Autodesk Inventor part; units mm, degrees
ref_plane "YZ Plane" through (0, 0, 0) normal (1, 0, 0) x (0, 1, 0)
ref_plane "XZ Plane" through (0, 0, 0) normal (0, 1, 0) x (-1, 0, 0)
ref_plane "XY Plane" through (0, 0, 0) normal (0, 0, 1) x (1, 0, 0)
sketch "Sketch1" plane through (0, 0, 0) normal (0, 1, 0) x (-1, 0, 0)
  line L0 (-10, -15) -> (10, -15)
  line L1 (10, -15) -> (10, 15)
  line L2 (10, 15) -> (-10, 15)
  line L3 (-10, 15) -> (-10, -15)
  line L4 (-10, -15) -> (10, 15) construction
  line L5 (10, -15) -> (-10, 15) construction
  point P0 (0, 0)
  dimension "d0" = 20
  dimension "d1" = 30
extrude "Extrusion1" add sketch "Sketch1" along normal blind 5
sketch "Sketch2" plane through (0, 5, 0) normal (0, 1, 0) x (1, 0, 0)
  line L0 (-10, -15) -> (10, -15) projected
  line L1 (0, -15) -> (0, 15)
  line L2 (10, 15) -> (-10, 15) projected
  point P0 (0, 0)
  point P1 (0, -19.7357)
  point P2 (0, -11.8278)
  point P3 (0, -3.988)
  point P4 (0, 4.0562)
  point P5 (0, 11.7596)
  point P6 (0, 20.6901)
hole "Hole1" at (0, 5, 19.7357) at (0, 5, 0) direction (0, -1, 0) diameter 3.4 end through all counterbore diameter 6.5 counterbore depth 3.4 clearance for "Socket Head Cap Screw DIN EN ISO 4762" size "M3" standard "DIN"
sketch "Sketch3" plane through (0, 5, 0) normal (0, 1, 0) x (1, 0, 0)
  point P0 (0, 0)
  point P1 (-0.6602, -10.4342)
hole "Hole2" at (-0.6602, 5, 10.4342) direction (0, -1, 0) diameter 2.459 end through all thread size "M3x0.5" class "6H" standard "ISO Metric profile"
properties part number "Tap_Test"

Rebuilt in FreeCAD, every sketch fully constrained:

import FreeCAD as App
import Part
import Sketcher
Q = App.Units.Quantity


def add_polygon(sketch, points):
    """Adds a closed chain of lines whose ends are joined by coincident constraints."""
    first, n = sketch.GeometryCount, len(points)
    for a, b in zip(points, points[1:] + points[:1]):
        sketch.addGeometry(Part.LineSegment(App.Vector(*a, 0), App.Vector(*b, 0)), False)
    for i in range(n):
        sketch.addConstraint(Sketcher.Constraint("Coincident", first + i, 2, first + (i + 1) % n, 1))

doc = App.newDocument("Part")
params = doc.addObject("Spreadsheet::Sheet", "Params")
for row, (alias, value) in enumerate([
    ("sketch1_width", "20 mm"),
    ("sketch1_height", "30 mm"),
    ("pad1_length", "5 mm"),
    ("sketch2_diameter", "3.4 mm"),
    ("hole_diameter", "3.4 mm"),
    ("hole_cbore_diameter", "6.5 mm"),
    ("hole_cbore_depth", "3.4 mm"),
    ("hole2_diameter", "2.459 mm"),
], start=1):
    params.set(f"A{row}", alias)
    params.set(f"B{row}", "=" + value)
    params.setAlias(f"B{row}", alias)

body = doc.addObject("PartDesign::Body", "Body")

# Sketch on XZ plane
sketch1 = doc.addObject("Sketcher::SketchObject", "Sketch")
body.addObject(sketch1)
sketch1.AttachmentSupport = (doc.XZ_Plane, [""])
sketch1.MapMode = "FlatFace"
add_polygon(sketch1, [(10, 15), (10, -15), (-10, -15), (-10, 15)])  # lines 0-3
sketch1.addConstraint([
    Sketcher.Constraint("Vertical", 0),
    Sketcher.Constraint("Horizontal", 1),
    Sketcher.Constraint("Vertical", 2),
    Sketcher.Constraint("Horizontal", 3),
    Sketcher.Constraint("Symmetric", 0, 2, 2, 2, -1, 1),
    Sketcher.Constraint("DistanceX", 1, 2, 1, 1, Q("20 mm")),
    Sketcher.Constraint("DistanceY", 0, 2, 0, 1, Q("30 mm")),
])
sketch1.setExpression("Constraints[9]", "Params.sketch1_width")
sketch1.setExpression("Constraints[10]", "Params.sketch1_height")
pad1 = doc.addObject("PartDesign::Pad", "Pad")
body.addObject(pad1)
pad1.Profile = sketch1
pad1.setExpression("Length", "Params.pad1_length")
pad1.Reversed = True

# Sketch on XZ plane
sketch2 = doc.addObject("Sketcher::SketchObject", "Sketch001")
body.addObject(sketch2)
sketch2.AttachmentSupport = (doc.XZ_Plane, [""])
sketch2.MapMode = "FlatFace"
sketch2.AttachmentOffset = App.Placement(App.Vector(0, 0, -5), App.Rotation())
sketch2.addGeometry([
    Part.Circle(App.Vector(0, 19.7, 0), App.Vector(0, 0, 1), 1.7),
    Part.Circle(App.Vector(0, 0, 0), App.Vector(0, 0, 1), 1.7),
], False)
sketch2.addConstraint([
    Sketcher.Constraint("Coincident", 1, 3, -1, 1),
    Sketcher.Constraint("Equal", 0, 1),
    Sketcher.Constraint("PointOnObject", 0, 3, -2),
    Sketcher.Constraint("Diameter", 0, Q("3.4 mm")),
    Sketcher.Constraint("DistanceY", -1, 1, 0, 3, Q("19.7357 mm")),
])
sketch2.setExpression("Constraints[3]", "Params.sketch2_diameter")
doc.recompute()
hole = doc.addObject("PartDesign::Hole", "Hole")
body.addObject(hole)
hole.Profile = sketch2
hole.ThreadType = "None"
hole.setExpression("Diameter", "Params.hole_diameter")
hole.DepthType = "ThroughAll"
hole.HoleCutType = "Counterbore"
hole.setExpression("HoleCutDiameter", "Params.hole_cbore_diameter")
hole.setExpression("HoleCutDepth", "Params.hole_cbore_depth")
hole.Reversed = True

# Sketch on XZ plane
sketch3 = doc.addObject("Sketcher::SketchObject", "Sketch002")
body.addObject(sketch3)
sketch3.AttachmentSupport = (doc.XZ_Plane, [""])
sketch3.MapMode = "FlatFace"
sketch3.AttachmentOffset = App.Placement(App.Vector(0, 0, -5), App.Rotation())
sketch3.addGeometry(Part.Circle(App.Vector(-0.7, 10.4, 0), App.Vector(0, 0, 1), 1.2), False)
sketch3.addConstraint([
    Sketcher.Constraint("Diameter", 0, Q("2.459 mm")),
    Sketcher.Constraint("DistanceX", 0, 3, -1, 1, Q("0.6602 mm")),
    Sketcher.Constraint("DistanceY", -1, 1, 0, 3, Q("10.4342 mm")),
])
doc.recompute()
hole2 = doc.addObject("PartDesign::Hole", "Hole001")
body.addObject(hole2)
hole2.Profile = sketch3
hole2.ThreadType = "None"
hole2.setExpression("Diameter", "Params.hole2_diameter")
hole2.DepthType = "ThroughAll"
hole2.Reversed = True

doc.recompute()
